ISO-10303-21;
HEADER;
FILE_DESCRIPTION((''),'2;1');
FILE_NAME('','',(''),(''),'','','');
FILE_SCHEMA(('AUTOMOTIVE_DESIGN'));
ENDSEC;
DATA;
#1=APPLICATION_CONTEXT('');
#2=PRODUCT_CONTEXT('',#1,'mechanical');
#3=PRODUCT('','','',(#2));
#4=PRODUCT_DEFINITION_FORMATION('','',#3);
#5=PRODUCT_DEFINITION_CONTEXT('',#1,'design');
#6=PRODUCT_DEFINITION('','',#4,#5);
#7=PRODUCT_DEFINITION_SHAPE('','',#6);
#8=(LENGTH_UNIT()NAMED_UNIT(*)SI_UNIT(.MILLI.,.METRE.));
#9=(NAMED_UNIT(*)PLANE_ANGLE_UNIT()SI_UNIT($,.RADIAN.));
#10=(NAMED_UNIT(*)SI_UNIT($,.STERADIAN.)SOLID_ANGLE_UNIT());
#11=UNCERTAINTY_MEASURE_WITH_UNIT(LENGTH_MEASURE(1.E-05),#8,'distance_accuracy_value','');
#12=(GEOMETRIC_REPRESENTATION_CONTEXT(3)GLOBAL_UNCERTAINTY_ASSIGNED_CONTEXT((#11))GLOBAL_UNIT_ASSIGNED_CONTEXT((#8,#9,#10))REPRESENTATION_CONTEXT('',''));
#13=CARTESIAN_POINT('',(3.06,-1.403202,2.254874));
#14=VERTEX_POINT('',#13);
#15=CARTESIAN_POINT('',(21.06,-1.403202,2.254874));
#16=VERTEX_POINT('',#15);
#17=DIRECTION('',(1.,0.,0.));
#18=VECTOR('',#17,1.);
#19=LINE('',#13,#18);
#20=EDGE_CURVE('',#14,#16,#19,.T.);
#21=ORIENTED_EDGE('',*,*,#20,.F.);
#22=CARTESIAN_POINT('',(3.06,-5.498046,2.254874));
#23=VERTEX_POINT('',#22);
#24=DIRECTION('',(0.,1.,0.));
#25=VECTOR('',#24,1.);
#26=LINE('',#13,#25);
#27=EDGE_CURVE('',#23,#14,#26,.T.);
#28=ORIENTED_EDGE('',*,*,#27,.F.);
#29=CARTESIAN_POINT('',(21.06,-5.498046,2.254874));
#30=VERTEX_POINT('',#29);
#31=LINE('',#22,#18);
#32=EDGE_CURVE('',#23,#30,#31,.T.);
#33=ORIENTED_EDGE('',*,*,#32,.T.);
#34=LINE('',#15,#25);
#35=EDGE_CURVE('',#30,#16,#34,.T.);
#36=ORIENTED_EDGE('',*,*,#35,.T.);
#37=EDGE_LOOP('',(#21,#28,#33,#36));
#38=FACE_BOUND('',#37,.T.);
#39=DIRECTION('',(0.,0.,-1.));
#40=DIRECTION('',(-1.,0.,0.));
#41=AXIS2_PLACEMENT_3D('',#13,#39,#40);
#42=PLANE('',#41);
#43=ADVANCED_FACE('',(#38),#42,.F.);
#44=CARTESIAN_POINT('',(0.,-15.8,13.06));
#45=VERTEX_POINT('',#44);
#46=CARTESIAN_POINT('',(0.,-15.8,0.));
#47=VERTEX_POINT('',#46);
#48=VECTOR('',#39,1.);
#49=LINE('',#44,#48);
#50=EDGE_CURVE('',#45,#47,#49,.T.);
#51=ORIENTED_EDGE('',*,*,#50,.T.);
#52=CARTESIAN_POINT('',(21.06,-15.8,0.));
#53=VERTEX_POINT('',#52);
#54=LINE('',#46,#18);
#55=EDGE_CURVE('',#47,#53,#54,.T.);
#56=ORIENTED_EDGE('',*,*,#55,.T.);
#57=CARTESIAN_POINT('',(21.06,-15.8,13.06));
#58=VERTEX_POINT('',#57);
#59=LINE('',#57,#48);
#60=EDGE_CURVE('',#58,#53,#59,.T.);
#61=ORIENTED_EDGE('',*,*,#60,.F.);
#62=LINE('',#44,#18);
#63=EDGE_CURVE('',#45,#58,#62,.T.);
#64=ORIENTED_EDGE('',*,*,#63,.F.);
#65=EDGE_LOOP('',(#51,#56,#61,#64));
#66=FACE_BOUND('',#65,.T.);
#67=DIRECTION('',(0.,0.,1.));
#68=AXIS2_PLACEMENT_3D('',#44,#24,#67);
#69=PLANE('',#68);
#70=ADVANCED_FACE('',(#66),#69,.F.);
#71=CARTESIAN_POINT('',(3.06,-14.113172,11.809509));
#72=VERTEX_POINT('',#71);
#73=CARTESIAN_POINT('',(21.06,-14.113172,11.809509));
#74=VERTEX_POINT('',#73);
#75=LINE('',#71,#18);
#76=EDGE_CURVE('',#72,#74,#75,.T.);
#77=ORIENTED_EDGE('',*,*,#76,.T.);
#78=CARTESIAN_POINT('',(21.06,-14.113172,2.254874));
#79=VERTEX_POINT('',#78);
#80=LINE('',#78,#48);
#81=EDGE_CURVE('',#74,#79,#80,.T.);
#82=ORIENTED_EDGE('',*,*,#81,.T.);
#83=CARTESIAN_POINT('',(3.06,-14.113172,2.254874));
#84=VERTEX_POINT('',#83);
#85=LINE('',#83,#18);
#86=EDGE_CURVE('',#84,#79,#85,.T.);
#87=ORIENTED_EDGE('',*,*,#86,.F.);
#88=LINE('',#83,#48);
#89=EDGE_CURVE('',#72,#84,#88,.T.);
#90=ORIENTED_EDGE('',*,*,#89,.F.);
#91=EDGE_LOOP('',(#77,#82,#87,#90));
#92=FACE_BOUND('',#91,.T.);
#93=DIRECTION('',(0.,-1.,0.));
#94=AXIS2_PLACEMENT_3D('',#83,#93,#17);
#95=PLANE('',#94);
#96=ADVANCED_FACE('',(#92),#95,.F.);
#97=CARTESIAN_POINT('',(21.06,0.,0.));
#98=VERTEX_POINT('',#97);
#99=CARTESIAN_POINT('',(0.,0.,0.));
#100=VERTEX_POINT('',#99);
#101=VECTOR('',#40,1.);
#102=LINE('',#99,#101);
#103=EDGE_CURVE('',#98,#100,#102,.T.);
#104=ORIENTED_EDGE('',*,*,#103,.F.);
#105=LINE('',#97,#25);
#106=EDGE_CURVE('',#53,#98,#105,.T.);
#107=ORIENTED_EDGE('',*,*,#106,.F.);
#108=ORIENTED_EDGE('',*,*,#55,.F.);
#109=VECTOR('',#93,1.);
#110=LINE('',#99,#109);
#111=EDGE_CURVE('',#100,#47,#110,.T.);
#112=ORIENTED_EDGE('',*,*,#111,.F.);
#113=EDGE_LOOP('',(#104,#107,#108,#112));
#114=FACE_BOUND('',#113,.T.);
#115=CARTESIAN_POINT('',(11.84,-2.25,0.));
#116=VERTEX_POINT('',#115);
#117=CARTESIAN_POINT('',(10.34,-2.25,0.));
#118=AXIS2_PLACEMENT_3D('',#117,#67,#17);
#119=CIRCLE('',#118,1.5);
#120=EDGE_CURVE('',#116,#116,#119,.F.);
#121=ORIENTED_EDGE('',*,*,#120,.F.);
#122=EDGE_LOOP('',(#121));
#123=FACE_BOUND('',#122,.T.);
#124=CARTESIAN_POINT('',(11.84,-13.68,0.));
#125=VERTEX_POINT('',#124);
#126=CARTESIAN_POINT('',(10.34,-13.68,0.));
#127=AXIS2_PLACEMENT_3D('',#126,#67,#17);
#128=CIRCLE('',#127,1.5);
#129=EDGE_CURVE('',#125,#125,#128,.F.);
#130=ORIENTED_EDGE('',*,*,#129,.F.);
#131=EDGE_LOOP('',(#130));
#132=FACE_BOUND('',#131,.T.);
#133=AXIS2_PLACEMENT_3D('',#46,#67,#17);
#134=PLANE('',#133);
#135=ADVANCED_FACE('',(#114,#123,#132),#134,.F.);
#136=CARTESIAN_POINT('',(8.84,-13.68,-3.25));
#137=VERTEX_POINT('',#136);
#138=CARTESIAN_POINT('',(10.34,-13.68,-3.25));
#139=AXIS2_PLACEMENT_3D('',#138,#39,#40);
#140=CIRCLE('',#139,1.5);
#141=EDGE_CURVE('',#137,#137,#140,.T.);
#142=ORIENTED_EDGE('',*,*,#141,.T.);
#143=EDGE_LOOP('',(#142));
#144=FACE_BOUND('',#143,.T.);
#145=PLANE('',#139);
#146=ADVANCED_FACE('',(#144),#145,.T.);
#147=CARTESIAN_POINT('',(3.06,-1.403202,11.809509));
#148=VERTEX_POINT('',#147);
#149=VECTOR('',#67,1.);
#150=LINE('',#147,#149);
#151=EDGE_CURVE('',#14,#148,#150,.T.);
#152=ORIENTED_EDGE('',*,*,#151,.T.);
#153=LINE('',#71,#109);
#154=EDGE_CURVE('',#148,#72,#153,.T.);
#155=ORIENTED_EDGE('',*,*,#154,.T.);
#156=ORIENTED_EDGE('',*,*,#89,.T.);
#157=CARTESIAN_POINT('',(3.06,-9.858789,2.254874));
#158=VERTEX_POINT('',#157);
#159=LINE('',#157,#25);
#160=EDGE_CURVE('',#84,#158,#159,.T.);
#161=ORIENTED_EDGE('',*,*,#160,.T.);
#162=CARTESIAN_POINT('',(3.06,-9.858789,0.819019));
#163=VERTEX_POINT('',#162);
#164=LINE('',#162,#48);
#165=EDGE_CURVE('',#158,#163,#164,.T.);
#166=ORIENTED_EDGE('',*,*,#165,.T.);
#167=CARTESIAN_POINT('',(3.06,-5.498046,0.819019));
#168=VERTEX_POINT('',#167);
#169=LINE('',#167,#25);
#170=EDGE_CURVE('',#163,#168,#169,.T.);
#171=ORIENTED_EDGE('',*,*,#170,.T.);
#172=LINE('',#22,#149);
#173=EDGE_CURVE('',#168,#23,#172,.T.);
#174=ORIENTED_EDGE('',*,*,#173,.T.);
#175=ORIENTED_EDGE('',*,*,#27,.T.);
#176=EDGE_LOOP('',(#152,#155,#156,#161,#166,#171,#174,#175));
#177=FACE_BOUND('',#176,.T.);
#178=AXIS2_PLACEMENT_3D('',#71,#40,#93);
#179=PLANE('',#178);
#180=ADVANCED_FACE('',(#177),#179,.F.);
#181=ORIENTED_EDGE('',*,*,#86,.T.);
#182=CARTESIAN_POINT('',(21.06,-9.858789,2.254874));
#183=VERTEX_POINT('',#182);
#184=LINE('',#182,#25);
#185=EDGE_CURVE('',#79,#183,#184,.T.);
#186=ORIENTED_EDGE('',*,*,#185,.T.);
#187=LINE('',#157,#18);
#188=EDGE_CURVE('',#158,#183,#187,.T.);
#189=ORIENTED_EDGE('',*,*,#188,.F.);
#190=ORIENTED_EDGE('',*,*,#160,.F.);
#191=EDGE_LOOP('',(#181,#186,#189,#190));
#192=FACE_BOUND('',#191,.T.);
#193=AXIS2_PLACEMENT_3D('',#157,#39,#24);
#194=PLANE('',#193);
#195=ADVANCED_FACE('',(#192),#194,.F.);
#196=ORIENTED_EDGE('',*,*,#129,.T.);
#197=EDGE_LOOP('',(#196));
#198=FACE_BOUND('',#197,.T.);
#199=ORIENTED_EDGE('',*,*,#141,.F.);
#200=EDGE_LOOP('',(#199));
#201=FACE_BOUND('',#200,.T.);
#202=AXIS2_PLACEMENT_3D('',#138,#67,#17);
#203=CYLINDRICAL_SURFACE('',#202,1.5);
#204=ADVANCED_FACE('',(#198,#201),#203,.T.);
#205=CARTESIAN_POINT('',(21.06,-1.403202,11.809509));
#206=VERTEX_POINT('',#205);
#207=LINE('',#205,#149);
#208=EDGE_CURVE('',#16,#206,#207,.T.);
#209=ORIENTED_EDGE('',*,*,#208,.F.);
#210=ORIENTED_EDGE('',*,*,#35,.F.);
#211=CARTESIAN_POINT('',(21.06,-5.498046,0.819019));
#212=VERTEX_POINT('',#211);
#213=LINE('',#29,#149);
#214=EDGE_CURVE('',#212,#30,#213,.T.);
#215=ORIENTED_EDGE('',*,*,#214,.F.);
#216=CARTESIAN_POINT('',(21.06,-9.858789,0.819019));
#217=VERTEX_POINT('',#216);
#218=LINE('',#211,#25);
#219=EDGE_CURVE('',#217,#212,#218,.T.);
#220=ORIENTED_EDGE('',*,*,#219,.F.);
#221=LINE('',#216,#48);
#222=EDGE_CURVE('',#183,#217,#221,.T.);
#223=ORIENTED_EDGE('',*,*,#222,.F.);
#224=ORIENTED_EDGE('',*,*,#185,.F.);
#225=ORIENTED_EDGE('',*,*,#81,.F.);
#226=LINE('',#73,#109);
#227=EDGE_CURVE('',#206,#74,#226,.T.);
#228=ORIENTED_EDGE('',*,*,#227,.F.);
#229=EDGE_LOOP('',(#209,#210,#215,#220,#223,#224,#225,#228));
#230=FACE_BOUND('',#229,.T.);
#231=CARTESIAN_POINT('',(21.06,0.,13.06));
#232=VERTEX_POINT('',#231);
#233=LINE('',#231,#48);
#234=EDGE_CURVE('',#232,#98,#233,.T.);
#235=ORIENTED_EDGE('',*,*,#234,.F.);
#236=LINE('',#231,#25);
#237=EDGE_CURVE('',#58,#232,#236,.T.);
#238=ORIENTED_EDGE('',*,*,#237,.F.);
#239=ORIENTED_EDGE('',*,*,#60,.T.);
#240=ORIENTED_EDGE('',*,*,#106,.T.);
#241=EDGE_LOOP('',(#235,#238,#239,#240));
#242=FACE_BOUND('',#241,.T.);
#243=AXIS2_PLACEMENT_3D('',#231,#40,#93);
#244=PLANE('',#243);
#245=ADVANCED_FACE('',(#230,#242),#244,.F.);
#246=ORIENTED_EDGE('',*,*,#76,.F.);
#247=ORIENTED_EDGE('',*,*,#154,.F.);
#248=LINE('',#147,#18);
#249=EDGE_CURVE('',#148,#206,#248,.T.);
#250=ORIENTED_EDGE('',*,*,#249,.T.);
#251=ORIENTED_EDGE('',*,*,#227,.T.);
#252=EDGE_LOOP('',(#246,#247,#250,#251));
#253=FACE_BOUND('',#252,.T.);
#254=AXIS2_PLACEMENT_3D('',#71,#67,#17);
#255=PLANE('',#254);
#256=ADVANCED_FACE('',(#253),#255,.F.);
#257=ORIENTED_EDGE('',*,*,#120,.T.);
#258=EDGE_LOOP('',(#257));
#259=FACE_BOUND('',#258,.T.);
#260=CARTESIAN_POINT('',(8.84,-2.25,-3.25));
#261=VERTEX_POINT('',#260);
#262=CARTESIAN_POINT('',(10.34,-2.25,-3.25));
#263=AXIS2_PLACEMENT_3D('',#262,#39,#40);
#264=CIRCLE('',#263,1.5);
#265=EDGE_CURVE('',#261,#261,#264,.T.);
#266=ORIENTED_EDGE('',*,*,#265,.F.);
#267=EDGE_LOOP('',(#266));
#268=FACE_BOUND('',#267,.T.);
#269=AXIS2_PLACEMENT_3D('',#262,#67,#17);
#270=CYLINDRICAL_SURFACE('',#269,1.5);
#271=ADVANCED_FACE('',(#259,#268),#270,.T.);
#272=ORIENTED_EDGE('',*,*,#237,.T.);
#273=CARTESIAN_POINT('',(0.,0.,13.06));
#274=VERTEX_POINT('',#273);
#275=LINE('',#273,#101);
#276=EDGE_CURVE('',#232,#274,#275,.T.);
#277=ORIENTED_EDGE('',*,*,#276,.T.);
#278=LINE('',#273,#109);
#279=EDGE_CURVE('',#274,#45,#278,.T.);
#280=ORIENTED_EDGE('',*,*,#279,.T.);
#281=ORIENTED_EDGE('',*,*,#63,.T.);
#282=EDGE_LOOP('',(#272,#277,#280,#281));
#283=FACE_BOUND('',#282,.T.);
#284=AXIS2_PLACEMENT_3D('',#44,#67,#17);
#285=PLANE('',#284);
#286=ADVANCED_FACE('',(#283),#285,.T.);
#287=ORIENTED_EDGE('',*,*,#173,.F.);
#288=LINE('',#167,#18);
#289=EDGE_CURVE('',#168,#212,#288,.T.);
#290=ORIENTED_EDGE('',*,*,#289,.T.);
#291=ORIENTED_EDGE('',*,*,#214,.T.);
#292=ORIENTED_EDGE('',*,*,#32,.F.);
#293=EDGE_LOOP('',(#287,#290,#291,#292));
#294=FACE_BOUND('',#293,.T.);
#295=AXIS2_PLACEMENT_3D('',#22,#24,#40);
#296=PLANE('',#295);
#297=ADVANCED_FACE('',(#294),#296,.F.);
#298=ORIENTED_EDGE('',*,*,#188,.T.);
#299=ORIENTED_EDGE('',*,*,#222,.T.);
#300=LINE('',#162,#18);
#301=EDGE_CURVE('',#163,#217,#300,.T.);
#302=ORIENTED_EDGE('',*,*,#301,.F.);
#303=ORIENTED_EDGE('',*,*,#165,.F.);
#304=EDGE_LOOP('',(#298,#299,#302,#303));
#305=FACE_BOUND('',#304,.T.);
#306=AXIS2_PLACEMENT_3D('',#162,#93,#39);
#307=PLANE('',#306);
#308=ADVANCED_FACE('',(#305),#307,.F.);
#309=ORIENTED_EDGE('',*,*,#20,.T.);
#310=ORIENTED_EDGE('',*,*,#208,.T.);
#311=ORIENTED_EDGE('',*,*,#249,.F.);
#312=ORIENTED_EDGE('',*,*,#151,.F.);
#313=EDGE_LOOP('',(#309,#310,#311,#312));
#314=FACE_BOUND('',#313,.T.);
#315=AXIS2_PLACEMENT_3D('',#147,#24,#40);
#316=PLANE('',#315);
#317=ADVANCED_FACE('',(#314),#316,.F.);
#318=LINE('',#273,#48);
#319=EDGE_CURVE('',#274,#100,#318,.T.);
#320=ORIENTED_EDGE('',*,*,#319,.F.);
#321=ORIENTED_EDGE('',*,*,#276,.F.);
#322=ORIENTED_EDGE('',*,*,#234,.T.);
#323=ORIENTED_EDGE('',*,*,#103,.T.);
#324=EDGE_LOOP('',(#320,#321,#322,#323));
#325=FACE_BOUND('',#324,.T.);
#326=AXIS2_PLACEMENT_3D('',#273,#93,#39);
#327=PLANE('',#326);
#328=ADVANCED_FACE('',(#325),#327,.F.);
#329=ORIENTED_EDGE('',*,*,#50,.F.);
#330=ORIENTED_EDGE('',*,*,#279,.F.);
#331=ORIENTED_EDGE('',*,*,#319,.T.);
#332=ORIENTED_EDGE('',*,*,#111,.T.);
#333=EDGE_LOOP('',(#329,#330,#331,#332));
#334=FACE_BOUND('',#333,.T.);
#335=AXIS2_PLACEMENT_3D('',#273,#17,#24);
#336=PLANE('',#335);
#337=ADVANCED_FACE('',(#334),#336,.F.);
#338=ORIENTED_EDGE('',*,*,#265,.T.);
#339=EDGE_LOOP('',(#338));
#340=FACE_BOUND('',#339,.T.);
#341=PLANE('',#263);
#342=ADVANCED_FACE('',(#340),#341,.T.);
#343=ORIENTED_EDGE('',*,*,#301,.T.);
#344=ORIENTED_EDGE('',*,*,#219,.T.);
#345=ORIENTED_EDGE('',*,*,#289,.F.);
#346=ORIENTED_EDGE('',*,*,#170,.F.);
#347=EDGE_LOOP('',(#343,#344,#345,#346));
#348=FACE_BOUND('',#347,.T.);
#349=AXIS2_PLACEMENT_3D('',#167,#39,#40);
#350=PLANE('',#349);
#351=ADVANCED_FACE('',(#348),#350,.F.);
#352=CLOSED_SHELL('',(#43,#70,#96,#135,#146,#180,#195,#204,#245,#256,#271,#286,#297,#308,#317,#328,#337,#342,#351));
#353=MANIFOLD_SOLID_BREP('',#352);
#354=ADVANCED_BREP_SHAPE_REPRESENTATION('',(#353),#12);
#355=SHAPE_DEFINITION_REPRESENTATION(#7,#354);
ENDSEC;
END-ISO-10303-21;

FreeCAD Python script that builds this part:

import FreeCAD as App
import Part
import Sketcher
Q = App.Units.Quantity

doc = App.newDocument("Part")
body = doc.addObject("PartDesign::Body", "Body")

# Sketch on XY plane
sketch1 = body.newObject("Sketcher::SketchObject", "Sketch")
sketch1.AttachmentSupport = (doc.getObject("XY_Plane"), [""])
sketch1.MapMode = "FlatFace"
sketch1.addGeometry(Part.LineSegment(App.Vector(0, 0, 0), App.Vector(0, -15.8, 0)), False)
sketch1.addGeometry(Part.LineSegment(App.Vector(0, -15.8, 0), App.Vector(21.06, -15.8, 0)), False)
sketch1.addGeometry(Part.LineSegment(App.Vector(21.06, -15.8, 0), App.Vector(21.06, 0, 0)), False)
sketch1.addGeometry(Part.LineSegment(App.Vector(21.06, 0, 0), App.Vector(0, 0, 0)), False)
sketch1.addConstraint(Sketcher.Constraint("Coincident", 0, 2, 1, 1))
sketch1.addConstraint(Sketcher.Constraint("Coincident", 1, 2, 2, 1))
sketch1.addConstraint(Sketcher.Constraint("Coincident", 2, 2, 3, 1))
sketch1.addConstraint(Sketcher.Constraint("Coincident", 3, 2, 0, 1))
sketch1.addConstraint(Sketcher.Constraint("Vertical", 0))
sketch1.addConstraint(Sketcher.Constraint("Horizontal", 1))
sketch1.addConstraint(Sketcher.Constraint("Vertical", 2))
sketch1.addConstraint(Sketcher.Constraint("Horizontal", 3))
sketch1.addConstraint(Sketcher.Constraint("Coincident", 3, 2, -1, 1))
sketch1.addConstraint(Sketcher.Constraint("DistanceY", 0, 2, 0, 1, Q("15.8 mm")))
sketch1.addConstraint(Sketcher.Constraint("DistanceX", 1, 1, 1, 2, Q("21.06 mm")))
pad1 = body.newObject("PartDesign::Pad", "Pad")
pad1.Profile = sketch1
pad1.Length = 13.06

# Sketch on XY plane
sketch2 = body.newObject("Sketcher::SketchObject", "Sketch001")
sketch2.AttachmentSupport = (doc.getObject("XY_Plane"), [""])
sketch2.MapMode = "FlatFace"
sketch2.addGeometry(Part.Circle(App.Vector(10.34, -2.25, 0), App.Vector(0, 0, 1), 1.5), False)
sketch2.addGeometry(Part.Circle(App.Vector(10.34, -13.68, 0), App.Vector(0, 0, 1), 1.5), False)
sketch2.addConstraint(Sketcher.Constraint("Equal", 0, 1))
sketch2.addConstraint(Sketcher.Constraint("Vertical", 0, 3, 1, 3))
sketch2.addConstraint(Sketcher.Constraint("Diameter", 0, Q("3 mm")))
sketch2.addConstraint(Sketcher.Constraint("DistanceX", -1, 1, 0, 3, Q("10.34 mm")))
sketch2.addConstraint(Sketcher.Constraint("DistanceY", 0, 3, -1, 1, Q("2.25 mm")))
sketch2.addConstraint(Sketcher.Constraint("DistanceY", 1, 3, -1, 1, Q("13.68 mm")))
pad2 = body.newObject("PartDesign::Pad", "Pad001")
pad2.Profile = sketch2
pad2.Length = 3.25
pad2.Reversed = True

# Sketch on YZ plane
sketch3 = body.newObject("Sketcher::SketchObject", "Sketch002")
sketch3.AttachmentSupport = (doc.getObject("YZ_Plane"), [""])
sketch3.MapMode = "FlatFace"
sketch3.AttachmentOffset = App.Placement(App.Vector(0, 0, 21.06), App.Rotation())
sketch3.addGeometry(Part.LineSegment(App.Vector(-1.403202, 11.809509, 0), App.Vector(-14.113172, 11.809509, 0)), False)
sketch3.addGeometry(Part.LineSegment(App.Vector(-14.113172, 11.809509, 0), App.Vector(-14.113172, 2.254874, 0)), False)
sketch3.addGeometry(Part.LineSegment(App.Vector(-14.113172, 2.254874, 0), App.Vector(-9.858789, 2.254874, 0)), False)
sketch3.addGeometry(Part.LineSegment(App.Vector(-9.858789, 2.254874, 0), App.Vector(-9.858789, 0.819019, 0)), False)
sketch3.addGeometry(Part.LineSegment(App.Vector(-9.858789, 0.819019, 0), App.Vector(-5.498046, 0.819019, 0)), False)
sketch3.addGeometry(Part.LineSegment(App.Vector(-5.498046, 0.819019, 0), App.Vector(-5.498046, 2.254874, 0)), False)
sketch3.addGeometry(Part.LineSegment(App.Vector(-5.498046, 2.254874, 0), App.Vector(-1.403202, 2.254874, 0)), False)
sketch3.addGeometry(Part.LineSegment(App.Vector(-1.403202, 2.254874, 0), App.Vector(-1.403202, 11.809509, 0)), False)
sketch3.addConstraint(Sketcher.Constraint("Coincident", 0, 2, 1, 1))
sketch3.addConstraint(Sketcher.Constraint("Coincident", 1, 2, 2, 1))
sketch3.addConstraint(Sketcher.Constraint("Coincident", 2, 2, 3, 1))
sketch3.addConstraint(Sketcher.Constraint("Coincident", 3, 2, 4, 1))
sketch3.addConstraint(Sketcher.Constraint("Coincident", 4, 2, 5, 1))
sketch3.addConstraint(Sketcher.Constraint("Coincident", 5, 2, 6, 1))
sketch3.addConstraint(Sketcher.Constraint("Coincident", 6, 2, 7, 1))
sketch3.addConstraint(Sketcher.Constraint("Coincident", 7, 2, 0, 1))
sketch3.addConstraint(Sketcher.Constraint("Horizontal", 0))
sketch3.addConstraint(Sketcher.Constraint("Vertical", 1))
sketch3.addConstraint(Sketcher.Constraint("Horizontal", 2))
sketch3.addConstraint(Sketcher.Constraint("Vertical", 3))
sketch3.addConstraint(Sketcher.Constraint("Horizontal", 4))
sketch3.addConstraint(Sketcher.Constraint("Vertical", 5))
sketch3.addConstraint(Sketcher.Constraint("Horizontal", 6))
sketch3.addConstraint(Sketcher.Constraint("Vertical", 7))
sketch3.addConstraint(Sketcher.Constraint("Horizontal", 2, 2, 5, 2))
sketch3.addConstraint(Sketcher.Constraint("DistanceX", 0, 2, 0, 1, Q("12.70997 mm")))
sketch3.addConstraint(Sketcher.Constraint("DistanceX", 2, 1, 2, 2, Q("4.254383 mm")))
sketch3.addConstraint(Sketcher.Constraint("DistanceX", 4, 1, 4, 2, Q("4.360743 mm")))
sketch3.addConstraint(Sketcher.Constraint("DistanceY", 1, 2, 1, 1, Q("9.554636 mm")))
sketch3.addConstraint(Sketcher.Constraint("DistanceY", 3, 2, 3, 1, Q("1.435854 mm")))
sketch3.addConstraint(Sketcher.Constraint("DistanceY", -1, 1, 0, 2, Q("11.809509 mm")))
sketch3.addConstraint(Sketcher.Constraint("DistanceX", 2, 2, -1, 1, Q("9.858789 mm")))
pocket1 = body.newObject("PartDesign::Pocket", "Pocket")
pocket1.Profile = sketch3
pocket1.Length = 18

doc.recompute()
